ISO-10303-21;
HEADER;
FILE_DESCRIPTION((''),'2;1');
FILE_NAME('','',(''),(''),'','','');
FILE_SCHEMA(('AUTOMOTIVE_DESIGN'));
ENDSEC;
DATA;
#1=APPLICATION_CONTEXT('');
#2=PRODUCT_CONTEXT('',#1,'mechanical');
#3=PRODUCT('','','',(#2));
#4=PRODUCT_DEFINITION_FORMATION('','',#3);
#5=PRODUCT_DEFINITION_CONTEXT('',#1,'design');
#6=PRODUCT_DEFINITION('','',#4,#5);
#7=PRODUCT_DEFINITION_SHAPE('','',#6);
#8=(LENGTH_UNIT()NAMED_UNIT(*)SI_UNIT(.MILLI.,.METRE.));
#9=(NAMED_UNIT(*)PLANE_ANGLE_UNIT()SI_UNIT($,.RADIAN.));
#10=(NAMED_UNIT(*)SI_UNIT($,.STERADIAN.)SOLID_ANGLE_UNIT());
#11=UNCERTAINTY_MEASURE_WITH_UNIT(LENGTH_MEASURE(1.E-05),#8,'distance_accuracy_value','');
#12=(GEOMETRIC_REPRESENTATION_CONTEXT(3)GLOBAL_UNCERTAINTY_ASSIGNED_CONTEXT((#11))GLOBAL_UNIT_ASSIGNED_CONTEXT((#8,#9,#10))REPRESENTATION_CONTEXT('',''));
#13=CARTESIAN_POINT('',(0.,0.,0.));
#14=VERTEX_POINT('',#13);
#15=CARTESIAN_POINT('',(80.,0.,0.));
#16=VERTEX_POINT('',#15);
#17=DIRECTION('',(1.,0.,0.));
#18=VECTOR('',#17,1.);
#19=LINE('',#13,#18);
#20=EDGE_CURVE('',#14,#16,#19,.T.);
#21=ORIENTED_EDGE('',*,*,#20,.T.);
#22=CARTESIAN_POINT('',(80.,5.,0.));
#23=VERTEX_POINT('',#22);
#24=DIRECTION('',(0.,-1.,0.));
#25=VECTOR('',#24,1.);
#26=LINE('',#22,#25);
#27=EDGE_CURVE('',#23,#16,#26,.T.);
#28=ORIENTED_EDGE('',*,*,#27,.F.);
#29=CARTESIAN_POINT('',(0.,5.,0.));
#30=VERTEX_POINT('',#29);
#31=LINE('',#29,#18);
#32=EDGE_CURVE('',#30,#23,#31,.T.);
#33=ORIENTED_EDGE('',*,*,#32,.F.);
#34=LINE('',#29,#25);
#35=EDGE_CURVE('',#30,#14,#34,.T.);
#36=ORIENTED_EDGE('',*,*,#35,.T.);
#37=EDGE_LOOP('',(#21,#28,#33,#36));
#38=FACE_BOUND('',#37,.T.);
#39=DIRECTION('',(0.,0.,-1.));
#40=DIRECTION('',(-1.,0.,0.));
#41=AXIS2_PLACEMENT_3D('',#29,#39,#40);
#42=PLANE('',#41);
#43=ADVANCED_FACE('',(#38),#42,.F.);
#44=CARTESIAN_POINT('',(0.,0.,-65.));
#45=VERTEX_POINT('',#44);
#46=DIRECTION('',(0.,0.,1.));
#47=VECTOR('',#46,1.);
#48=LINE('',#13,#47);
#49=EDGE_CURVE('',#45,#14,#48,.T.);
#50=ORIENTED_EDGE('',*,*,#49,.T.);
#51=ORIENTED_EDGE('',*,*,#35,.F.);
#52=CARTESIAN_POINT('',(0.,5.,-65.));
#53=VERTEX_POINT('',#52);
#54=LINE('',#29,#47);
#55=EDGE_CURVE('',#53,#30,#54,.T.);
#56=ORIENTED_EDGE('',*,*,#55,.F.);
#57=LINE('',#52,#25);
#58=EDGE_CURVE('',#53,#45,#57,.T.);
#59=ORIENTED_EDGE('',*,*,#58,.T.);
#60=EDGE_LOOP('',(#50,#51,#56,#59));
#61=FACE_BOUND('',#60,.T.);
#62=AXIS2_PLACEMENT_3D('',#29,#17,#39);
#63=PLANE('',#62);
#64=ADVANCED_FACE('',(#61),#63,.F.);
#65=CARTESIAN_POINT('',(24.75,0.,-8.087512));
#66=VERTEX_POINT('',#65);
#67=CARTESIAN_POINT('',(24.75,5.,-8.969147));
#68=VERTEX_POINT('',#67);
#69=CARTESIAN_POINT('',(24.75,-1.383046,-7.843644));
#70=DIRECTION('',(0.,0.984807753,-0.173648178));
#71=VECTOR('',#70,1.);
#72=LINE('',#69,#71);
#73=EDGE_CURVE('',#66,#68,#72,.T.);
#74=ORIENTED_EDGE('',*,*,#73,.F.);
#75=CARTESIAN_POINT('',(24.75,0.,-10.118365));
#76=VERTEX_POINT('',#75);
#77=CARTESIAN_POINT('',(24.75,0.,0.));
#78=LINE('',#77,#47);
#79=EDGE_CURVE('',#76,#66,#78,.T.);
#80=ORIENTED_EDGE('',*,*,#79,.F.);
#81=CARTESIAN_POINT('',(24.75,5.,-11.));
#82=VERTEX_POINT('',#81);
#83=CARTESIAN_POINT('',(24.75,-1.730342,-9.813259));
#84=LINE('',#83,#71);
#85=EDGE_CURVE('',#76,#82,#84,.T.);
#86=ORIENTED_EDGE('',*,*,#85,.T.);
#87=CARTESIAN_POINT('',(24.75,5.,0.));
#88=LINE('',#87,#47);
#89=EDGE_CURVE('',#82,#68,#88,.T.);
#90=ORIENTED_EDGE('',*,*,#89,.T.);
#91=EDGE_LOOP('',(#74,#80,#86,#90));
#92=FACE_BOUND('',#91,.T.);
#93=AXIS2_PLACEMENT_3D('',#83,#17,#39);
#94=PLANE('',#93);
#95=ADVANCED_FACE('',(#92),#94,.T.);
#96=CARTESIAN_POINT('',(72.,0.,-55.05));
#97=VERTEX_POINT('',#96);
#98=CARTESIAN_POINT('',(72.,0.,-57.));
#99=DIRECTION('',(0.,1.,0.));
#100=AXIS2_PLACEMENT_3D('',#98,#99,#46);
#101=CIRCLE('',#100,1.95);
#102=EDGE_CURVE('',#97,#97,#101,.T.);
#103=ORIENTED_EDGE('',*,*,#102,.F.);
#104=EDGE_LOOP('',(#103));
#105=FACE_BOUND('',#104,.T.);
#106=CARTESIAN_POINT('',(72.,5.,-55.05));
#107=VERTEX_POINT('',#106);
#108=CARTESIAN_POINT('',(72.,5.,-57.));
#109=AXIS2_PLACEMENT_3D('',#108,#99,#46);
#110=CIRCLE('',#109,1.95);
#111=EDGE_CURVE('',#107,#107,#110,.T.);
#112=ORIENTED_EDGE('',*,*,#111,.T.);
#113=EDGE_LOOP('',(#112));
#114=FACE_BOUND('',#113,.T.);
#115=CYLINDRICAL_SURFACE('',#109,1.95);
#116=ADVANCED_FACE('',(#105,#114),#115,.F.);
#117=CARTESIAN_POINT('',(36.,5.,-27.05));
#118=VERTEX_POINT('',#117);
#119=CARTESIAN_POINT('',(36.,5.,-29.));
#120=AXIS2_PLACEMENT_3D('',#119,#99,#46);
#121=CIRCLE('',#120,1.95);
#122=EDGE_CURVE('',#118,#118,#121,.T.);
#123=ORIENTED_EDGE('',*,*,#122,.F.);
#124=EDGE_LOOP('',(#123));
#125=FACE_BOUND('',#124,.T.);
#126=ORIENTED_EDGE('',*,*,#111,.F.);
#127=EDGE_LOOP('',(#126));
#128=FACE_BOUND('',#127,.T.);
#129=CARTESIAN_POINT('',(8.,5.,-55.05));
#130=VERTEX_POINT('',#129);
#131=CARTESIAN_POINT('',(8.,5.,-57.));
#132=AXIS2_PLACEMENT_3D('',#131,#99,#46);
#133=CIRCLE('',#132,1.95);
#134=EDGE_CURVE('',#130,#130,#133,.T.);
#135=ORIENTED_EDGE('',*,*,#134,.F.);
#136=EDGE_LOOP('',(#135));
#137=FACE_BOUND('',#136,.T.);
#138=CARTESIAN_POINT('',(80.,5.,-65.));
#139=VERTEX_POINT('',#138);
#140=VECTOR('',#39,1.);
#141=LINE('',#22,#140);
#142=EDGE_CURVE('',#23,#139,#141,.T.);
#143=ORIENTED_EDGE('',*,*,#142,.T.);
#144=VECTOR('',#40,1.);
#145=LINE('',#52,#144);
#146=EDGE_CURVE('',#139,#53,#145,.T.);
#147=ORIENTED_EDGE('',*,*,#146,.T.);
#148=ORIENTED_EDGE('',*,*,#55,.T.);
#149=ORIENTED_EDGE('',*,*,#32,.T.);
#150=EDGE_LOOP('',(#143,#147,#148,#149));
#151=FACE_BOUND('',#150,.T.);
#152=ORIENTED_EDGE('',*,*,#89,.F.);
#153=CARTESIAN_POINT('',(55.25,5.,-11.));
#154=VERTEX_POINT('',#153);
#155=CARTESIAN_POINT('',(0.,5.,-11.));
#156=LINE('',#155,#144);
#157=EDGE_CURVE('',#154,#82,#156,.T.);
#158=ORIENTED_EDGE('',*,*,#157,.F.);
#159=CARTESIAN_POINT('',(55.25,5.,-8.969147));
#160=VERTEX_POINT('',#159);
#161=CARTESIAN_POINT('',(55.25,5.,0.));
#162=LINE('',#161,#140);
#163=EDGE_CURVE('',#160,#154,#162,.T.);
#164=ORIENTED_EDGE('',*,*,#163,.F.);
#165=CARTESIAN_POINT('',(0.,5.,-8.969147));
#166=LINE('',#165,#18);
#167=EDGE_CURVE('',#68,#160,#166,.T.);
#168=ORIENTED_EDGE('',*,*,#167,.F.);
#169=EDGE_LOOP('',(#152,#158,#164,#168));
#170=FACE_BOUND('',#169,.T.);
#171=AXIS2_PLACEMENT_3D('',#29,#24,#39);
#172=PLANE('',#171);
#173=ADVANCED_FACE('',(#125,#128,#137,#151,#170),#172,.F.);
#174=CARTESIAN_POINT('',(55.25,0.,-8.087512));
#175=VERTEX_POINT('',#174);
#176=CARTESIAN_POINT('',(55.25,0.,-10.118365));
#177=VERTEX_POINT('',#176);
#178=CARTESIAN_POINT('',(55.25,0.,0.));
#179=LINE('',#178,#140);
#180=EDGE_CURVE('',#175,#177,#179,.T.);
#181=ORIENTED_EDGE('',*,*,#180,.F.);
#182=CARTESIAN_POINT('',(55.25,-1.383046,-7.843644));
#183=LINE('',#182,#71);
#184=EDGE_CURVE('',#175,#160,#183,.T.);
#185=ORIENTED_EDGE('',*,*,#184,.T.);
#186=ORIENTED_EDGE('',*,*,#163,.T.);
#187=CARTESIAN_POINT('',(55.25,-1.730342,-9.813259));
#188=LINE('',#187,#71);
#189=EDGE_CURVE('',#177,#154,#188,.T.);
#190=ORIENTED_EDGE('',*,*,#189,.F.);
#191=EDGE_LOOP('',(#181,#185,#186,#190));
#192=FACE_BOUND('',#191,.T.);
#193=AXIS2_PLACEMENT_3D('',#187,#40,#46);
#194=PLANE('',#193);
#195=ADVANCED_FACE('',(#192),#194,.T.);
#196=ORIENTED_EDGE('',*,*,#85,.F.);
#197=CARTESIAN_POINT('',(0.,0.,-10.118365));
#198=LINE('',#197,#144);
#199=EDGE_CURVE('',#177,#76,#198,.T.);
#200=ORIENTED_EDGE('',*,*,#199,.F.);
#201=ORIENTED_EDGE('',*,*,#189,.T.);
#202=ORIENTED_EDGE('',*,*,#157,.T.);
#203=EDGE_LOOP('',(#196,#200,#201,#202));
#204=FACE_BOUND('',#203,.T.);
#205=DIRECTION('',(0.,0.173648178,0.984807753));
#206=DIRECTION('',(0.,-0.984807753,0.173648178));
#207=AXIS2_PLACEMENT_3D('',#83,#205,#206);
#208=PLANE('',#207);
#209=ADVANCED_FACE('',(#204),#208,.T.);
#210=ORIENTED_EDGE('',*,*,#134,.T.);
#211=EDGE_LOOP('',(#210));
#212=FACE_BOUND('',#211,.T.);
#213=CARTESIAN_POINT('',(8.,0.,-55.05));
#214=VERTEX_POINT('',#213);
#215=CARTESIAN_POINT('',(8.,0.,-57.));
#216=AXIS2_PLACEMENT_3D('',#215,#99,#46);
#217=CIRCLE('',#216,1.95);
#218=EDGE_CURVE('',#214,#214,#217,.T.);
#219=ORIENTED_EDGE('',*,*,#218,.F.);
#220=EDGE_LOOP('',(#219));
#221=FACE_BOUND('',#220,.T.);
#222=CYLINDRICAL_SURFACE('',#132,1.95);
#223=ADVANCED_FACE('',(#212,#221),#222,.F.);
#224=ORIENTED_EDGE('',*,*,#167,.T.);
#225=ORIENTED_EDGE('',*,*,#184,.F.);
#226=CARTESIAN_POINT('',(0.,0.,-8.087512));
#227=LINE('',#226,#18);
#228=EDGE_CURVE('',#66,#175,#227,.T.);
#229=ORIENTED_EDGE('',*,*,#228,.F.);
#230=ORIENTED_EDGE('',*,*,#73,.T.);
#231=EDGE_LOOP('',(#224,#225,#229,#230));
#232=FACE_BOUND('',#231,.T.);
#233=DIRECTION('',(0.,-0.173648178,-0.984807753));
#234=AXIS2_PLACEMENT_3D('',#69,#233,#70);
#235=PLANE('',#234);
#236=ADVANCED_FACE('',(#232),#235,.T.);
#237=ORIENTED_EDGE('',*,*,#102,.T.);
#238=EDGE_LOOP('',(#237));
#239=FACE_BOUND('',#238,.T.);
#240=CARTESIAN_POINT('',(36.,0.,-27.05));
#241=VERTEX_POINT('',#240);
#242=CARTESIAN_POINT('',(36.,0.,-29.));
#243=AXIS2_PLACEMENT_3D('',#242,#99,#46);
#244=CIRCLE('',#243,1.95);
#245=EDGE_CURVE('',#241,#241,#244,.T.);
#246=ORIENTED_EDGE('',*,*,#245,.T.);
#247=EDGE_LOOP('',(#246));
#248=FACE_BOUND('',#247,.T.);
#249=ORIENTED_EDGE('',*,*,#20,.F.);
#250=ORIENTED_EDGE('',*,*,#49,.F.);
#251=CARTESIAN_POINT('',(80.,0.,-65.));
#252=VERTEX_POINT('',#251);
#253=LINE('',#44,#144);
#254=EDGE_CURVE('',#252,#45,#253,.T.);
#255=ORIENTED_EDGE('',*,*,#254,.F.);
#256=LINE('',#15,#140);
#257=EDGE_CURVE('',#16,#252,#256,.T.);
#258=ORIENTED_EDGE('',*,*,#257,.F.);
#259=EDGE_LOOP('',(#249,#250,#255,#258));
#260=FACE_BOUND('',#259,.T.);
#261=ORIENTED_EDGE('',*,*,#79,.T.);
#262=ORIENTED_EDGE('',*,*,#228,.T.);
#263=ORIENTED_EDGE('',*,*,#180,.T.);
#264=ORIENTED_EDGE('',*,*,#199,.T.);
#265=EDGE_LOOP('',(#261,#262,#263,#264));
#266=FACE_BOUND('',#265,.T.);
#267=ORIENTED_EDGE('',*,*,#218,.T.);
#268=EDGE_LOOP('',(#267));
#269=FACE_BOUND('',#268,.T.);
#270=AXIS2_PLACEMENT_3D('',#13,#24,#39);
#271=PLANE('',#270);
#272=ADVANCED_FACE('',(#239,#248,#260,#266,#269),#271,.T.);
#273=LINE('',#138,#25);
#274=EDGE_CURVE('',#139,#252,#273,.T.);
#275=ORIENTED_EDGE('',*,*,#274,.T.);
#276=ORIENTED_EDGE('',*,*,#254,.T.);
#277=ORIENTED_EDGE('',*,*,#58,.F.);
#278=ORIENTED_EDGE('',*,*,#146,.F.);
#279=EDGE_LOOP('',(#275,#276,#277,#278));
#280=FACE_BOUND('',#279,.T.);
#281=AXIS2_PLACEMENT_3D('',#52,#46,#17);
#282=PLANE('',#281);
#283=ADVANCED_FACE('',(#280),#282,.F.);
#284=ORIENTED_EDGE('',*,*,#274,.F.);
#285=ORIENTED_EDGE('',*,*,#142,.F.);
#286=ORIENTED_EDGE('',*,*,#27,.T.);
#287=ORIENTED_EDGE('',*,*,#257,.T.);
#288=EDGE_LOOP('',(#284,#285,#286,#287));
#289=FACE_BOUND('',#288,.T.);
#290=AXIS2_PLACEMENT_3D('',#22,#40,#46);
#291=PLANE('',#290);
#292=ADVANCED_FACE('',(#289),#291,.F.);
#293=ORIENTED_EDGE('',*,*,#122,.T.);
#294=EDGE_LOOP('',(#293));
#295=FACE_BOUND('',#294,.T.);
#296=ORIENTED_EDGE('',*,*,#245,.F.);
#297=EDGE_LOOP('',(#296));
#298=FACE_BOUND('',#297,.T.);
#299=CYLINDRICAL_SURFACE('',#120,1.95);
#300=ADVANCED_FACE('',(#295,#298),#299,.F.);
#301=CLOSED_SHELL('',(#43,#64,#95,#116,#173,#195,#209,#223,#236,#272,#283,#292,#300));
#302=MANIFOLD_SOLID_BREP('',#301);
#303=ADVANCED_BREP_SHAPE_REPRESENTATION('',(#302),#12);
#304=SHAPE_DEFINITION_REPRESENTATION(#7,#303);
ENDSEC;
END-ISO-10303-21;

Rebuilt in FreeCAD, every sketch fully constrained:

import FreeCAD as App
import Part
import Sketcher
from FreeCAD import Vector

doc = App.newDocument("Part")
body = doc.addObject("PartDesign::Body", "Body")

sketch1 = body.newObject("Sketcher::SketchObject", "Sketch")
sketch1.AttachmentSupport = (doc.getObject("XZ_Plane"), [""])
sketch1.MapMode = "FlatFace"
sketch1.addGeometry([
    Part.LineSegment(Vector(0, -65, 0), Vector(0, 0, 0)),
    Part.LineSegment(Vector(0, 0, 0), Vector(80, 0, 0)),
    Part.LineSegment(Vector(80, 0, 0), Vector(80, -65, 0)),
    Part.LineSegment(Vector(80, -65, 0), Vector(0, -65, 0)),
], False)
sketch1.addConstraint([
    Sketcher.Constraint("Coincident", 0, 2, 1, 1),
    Sketcher.Constraint("Coincident", 1, 2, 2, 1),
    Sketcher.Constraint("Coincident", 2, 2, 3, 1),
    Sketcher.Constraint("Coincident", 3, 2, 0, 1),
    Sketcher.Constraint("Vertical", 0),
    Sketcher.Constraint("Horizontal", 1),
    Sketcher.Constraint("Vertical", 2),
    Sketcher.Constraint("Horizontal", 3),
    Sketcher.Constraint("Coincident", 0, 2, -1, 1),
    Sketcher.Constraint("DistanceX", 1, 1, 1, 2, 80.0),
    Sketcher.Constraint("DistanceY", 0, 1, 0, 2, 65.0),
])
pad1 = body.newObject("PartDesign::Pad", "Pad")
pad1.Profile = sketch1
pad1.Length = 5
pad1.Reversed = True

sketch2 = body.newObject("Sketcher::SketchObject", "Sketch001")
sketch2.AttachmentSupport = (doc.getObject("XZ_Plane"), [""])
sketch2.MapMode = "FlatFace"
sketch2.AttachmentOffset = App.Placement(Vector(0, 0, -5), App.Rotation())
sketch2.addGeometry([
    Part.Circle(Vector(8, -57, 0), Vector(0, 0, 1), 1.95),
    Part.Circle(Vector(36, -29, 0), Vector(0, 0, 1), 1.95),
    Part.Circle(Vector(72, -57, 0), Vector(0, 0, 1), 1.95),
], False)
sketch2.addConstraint([
    Sketcher.Constraint("Equal", 0, 1),
    Sketcher.Constraint("Equal", 1, 2),
    Sketcher.Constraint("Horizontal", 0, 3, 2, 3),
    Sketcher.Constraint("Diameter", 0, 3.9),
    Sketcher.Constraint("DistanceX", -1, 1, 0, 3, 8.0),
    Sketcher.Constraint("DistanceY", 0, 3, -1, 1, 57.0),
    Sketcher.Constraint("DistanceX", -1, 1, 1, 3, 36.0),
    Sketcher.Constraint("DistanceY", 1, 3, -1, 1, 29.0),
    Sketcher.Constraint("DistanceX", -1, 1, 2, 3, 72.0),
])
doc.recompute()
hole = body.newObject("PartDesign::Hole", "Hole")
hole.Profile = sketch2
hole.ThreadType = "None"
hole.Diameter = 3.9
hole.DepthType = "ThroughAll"
hole.Reversed = True

sketch3 = body.newObject("Sketcher::SketchObject", "Sketch002")
sketch3.Placement = App.Placement(Vector(0, 4.849232, -0.85505), App.Rotation(Vector(-1, 0, 0), Vector(0, -0.173648178, -0.984807753), Vector(0, -0.984807753, 0.173648178), "ZXY"))
sketch3.addGeometry([
    Part.LineSegment(Vector(-55.25, 9.964644, 0), Vector(-55.25, 7.964644, 0)),
    Part.LineSegment(Vector(-55.25, 7.964644, 0), Vector(-24.75, 7.964644, 0)),
    Part.LineSegment(Vector(-24.75, 7.964644, 0), Vector(-24.75, 9.964644, 0)),
    Part.LineSegment(Vector(-24.75, 9.964644, 0), Vector(-55.25, 9.964644, 0)),
], False)
sketch3.addConstraint([
    Sketcher.Constraint("Coincident", 0, 2, 1, 1),
    Sketcher.Constraint("Coincident", 1, 2, 2, 1),
    Sketcher.Constraint("Coincident", 2, 2, 3, 1),
    Sketcher.Constraint("Coincident", 3, 2, 0, 1),
    Sketcher.Constraint("Vertical", 0),
    Sketcher.Constraint("Horizontal", 1),
    Sketcher.Constraint("Vertical", 2),
    Sketcher.Constraint("Horizontal", 3),
    Sketcher.Constraint("DistanceY", 0, 2, 0, 1, 2.0),
    Sketcher.Constraint("DistanceX", 1, 1, 1, 2, 30.5),
    Sketcher.Constraint("DistanceX", 0, 2, -1, 1, 55.25),
    Sketcher.Constraint("DistanceY", -1, 1, 0, 2, 7.964644),
])
pocket1 = body.newObject("PartDesign::Pocket", "Pocket")
pocket1.Profile = sketch3
pocket1.Type = "ThroughAll"
pocket1.Midplane = True

doc.recompute()
